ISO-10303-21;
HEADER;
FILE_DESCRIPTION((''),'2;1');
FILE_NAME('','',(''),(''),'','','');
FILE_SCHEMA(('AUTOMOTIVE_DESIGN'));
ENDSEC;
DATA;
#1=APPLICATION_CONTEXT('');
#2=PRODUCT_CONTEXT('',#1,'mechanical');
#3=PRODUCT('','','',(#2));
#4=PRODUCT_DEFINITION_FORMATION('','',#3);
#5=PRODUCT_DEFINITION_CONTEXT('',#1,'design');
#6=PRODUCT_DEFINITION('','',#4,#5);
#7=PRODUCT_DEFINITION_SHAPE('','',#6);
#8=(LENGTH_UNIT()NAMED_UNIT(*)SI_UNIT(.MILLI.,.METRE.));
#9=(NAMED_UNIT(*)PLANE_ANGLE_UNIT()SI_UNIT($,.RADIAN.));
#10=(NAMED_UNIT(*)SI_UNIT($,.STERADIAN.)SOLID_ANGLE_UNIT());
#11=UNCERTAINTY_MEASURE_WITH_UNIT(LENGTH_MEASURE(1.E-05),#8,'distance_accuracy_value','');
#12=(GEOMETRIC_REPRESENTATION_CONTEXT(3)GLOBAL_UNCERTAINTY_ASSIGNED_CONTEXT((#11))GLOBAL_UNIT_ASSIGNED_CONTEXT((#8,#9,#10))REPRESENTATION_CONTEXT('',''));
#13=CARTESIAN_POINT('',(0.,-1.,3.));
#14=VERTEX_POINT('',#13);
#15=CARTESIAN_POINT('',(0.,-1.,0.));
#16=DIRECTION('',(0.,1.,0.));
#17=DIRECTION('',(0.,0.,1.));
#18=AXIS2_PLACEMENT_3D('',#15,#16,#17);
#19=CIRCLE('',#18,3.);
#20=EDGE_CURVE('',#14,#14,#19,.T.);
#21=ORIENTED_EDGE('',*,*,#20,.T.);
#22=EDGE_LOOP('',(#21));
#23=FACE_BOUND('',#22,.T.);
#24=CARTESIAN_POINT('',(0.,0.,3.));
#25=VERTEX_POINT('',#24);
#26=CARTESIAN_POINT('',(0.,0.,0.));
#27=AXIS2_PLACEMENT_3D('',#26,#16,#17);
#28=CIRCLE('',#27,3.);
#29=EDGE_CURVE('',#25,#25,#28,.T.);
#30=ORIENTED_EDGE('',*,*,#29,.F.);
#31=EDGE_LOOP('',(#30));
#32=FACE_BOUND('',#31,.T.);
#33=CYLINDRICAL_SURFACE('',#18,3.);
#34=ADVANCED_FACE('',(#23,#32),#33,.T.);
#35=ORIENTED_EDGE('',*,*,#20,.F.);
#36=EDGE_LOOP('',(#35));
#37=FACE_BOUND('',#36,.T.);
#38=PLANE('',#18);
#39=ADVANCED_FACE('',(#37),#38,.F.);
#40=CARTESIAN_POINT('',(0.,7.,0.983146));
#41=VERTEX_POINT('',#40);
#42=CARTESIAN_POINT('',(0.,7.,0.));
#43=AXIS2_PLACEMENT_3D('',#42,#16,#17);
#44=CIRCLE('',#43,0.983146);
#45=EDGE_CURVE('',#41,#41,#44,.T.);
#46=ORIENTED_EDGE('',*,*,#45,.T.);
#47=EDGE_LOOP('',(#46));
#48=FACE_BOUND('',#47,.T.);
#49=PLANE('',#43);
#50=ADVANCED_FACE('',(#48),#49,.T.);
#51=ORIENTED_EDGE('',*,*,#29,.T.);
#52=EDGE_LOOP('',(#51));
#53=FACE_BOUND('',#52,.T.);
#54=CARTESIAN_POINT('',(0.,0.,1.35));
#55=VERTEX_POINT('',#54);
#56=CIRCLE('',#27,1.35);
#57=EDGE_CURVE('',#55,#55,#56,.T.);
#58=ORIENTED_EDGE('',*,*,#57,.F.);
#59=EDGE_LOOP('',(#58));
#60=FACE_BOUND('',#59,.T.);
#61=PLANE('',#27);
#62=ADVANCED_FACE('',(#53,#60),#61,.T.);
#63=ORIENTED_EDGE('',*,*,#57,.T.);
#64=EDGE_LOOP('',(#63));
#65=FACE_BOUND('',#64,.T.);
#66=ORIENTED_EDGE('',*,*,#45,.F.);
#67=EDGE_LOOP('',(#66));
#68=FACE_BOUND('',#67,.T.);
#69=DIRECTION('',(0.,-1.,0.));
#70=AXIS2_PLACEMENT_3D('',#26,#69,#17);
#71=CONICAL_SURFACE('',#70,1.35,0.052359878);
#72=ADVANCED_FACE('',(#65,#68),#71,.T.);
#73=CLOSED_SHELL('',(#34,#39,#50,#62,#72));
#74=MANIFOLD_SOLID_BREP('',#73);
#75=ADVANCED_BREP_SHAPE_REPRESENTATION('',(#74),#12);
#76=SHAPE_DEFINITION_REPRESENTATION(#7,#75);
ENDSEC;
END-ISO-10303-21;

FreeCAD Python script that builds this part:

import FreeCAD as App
import Part
import Sketcher

V = App.Vector

doc = App.newDocument("Part")
body = doc.addObject("PartDesign::Body", "Body")

sketch1 = body.newObject("Sketcher::SketchObject", "Sketch")
sketch1.AttachmentSupport = (doc.getObject("XZ_Plane"), [""])
sketch1.MapMode = "FlatFace"
sketch1.addGeometry(Part.Circle(V(0, 0, 0), V(0, 0, 1), 1.4), False)
sketch1.addConstraint(Sketcher.Constraint("Coincident", 0, 3, -1, 1))
sketch1.addConstraint(Sketcher.Constraint("Diameter", 0, 2.7))
pad1 = body.newObject("PartDesign::Pad", "Pad")
pad1.Profile = sketch1
pad1.Length = 7
pad1.Reversed = True
pad1.TaperAngle = -3

sketch2 = body.newObject("Sketcher::SketchObject", "Sketch001")
sketch2.AttachmentSupport = (doc.getObject("XZ_Plane"), [""])
sketch2.MapMode = "FlatFace"
sketch2.addGeometry(Part.Circle(V(0, 0, 0), V(0, 0, 1), 3), False)
sketch2.addConstraint(Sketcher.Constraint("Coincident", 0, 3, -1, 1))
sketch2.addConstraint(Sketcher.Constraint("Diameter", 0, 6.0))
pad2 = body.newObject("PartDesign::Pad", "Pad001")
pad2.Profile = sketch2
pad2.Length = 1

doc.recompute()
